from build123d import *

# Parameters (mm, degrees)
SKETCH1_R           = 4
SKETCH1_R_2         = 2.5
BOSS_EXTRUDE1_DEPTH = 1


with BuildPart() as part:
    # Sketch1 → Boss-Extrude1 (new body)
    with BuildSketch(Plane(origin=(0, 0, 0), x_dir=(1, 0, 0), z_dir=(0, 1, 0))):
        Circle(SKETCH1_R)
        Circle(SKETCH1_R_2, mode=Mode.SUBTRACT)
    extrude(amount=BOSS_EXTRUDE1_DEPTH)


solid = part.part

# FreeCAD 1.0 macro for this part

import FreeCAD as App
import Part
import Sketcher
from FreeCAD import Vector
Q = App.Units.Quantity

doc = App.newDocument("Part")
body = doc.addObject("PartDesign::Body", "Body")

# Sketch on XZ plane
sketch1 = body.newObject("Sketcher::SketchObject", "Sketch")
sketch1.AttachmentSupport = (doc.getObject("XZ_Plane"), [""])
sketch1.MapMode = "FlatFace"
sketch1.addGeometry(Part.Circle(Vector(0, 0, 0), Vector(0, 0, 1), 4), False)
sketch1.addGeometry(Part.Circle(Vector(0, 0, 0), Vector(0, 0, 1), 2.5), False)
sketch1.addConstraint(Sketcher.Constraint("Coincident", 0, 3, -1, 1))
sketch1.addConstraint(Sketcher.Constraint("Coincident", 1, 3, -1, 1))
sketch1.addConstraint(Sketcher.Constraint("Diameter", 0, Q("8 mm")))
sketch1.addConstraint(Sketcher.Constraint("Diameter", 1, Q("5 mm")))
pad1 = body.newObject("PartDesign::Pad", "Pad")
pad1.Profile = sketch1
pad1.Length = 1
pad1.Reversed = True

doc.recompute()
